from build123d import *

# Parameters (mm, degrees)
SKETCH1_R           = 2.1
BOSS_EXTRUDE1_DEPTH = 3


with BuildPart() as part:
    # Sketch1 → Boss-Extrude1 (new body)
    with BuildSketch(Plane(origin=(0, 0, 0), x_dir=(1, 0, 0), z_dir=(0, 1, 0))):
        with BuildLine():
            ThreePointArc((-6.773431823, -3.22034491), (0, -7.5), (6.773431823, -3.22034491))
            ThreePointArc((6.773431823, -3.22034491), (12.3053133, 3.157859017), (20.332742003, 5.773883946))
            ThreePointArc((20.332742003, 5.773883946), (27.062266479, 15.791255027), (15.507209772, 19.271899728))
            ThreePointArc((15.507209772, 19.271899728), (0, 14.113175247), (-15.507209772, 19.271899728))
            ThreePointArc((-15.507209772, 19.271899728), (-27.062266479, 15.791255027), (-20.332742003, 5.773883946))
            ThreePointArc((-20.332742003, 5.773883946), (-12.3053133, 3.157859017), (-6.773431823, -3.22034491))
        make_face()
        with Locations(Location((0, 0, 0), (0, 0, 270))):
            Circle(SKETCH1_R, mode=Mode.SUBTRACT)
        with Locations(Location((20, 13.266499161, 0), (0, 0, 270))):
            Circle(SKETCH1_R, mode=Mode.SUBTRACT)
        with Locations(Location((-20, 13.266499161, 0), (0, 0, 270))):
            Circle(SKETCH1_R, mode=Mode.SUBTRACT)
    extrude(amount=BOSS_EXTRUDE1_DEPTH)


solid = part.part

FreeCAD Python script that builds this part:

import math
import FreeCAD as App
import Part
import Sketcher

V = App.Vector
Q = App.Units.Quantity

doc = App.newDocument("Part")
body = doc.addObject("PartDesign::Body", "Body")

sketch1 = doc.addObject("Sketcher::SketchObject", "Sketch")
body.addObject(sketch1)
sketch1.AttachmentSupport = (doc.XZ_Plane, [""])
sketch1.MapMode = "FlatFace"
sketch1.addGeometry([
    Part.ArcOfCircle(Part.Circle(V(0, 0, 0), V(0, 0, 1), 7.5), math.radians(25), math.radians(155)),
    Part.ArcOfCircle(Part.Circle(V(21, 10, 0), V(0, 0, 1), 15.8), math.radians(-155), math.radians(-93)),
    Part.ArcOfCircle(Part.Circle(V(20, -13.3, 0), V(0, 0, 1), 7.5), math.radians(-127), math.radians(87)),
    Part.ArcOfCircle(Part.Circle(V(0, -40, 0), V(0, 0, 1), 25.9), math.radians(53), math.radians(127)),
    Part.ArcOfCircle(Part.Circle(V(-20, -13.3, 0), V(0, 0, 1), 7.5), math.radians(93), math.radians(307)),
    Part.ArcOfCircle(Part.Circle(V(-21, 10, 0), V(0, 0, 1), 15.8), math.radians(-87), math.radians(-25)),
    Part.Circle(V(0, 0, 0), V(0, 0, 1), 2.1),
    Part.Circle(V(-20, -13.3, 0), V(0, 0, 1), 2.1),
    Part.Circle(V(20, -13.3, 0), V(0, 0, 1), 2.1),
], False)
sketch1.addConstraint([
    Sketcher.Constraint("Tangent", 0, 1, 1, 1),
    Sketcher.Constraint("Tangent", 1, 2, 2, 2),
    Sketcher.Constraint("Tangent", 2, 1, 3, 1),
    Sketcher.Constraint("Tangent", 3, 2, 4, 2),
    Sketcher.Constraint("Tangent", 4, 1, 5, 1),
    Sketcher.Constraint("Tangent", 5, 2, 0, 2),
    Sketcher.Constraint("Coincident", 0, 3, -1, 1),
    Sketcher.Constraint("Coincident", 6, 3, -1, 1),
    Sketcher.Constraint("Coincident", 7, 3, 4, 3),
    Sketcher.Constraint("Coincident", 8, 3, 2, 3),
    Sketcher.Constraint("Equal", 0, 2),
    Sketcher.Constraint("Equal", 2, 4),
    Sketcher.Constraint("Equal", 1, 5),
    Sketcher.Constraint("Equal", 6, 7),
    Sketcher.Constraint("Equal", 7, 8),
    Sketcher.Constraint("Symmetric", 2, 3, 4, 3, -2),
    Sketcher.Constraint("Diameter", 6, Q("4.2 mm")),
    Sketcher.Constraint("Radius", 0, Q("7.5 mm")),
    Sketcher.Constraint("DistanceY", -1, 1, 1, 3, Q("10 mm")),
    Sketcher.Constraint("DistanceX", -1, 1, 2, 3, Q("20 mm")),
    Sketcher.Constraint("DistanceY", 3, 3, -1, 1, Q("40 mm")),
    Sketcher.Constraint("Radius", 1, Q("15.789431 mm")),
])
pad1 = doc.addObject("PartDesign::Pad", "Pad")
body.addObject(pad1)
pad1.Profile = sketch1
pad1.Length = 3
pad1.Reversed = True

doc.recompute()
